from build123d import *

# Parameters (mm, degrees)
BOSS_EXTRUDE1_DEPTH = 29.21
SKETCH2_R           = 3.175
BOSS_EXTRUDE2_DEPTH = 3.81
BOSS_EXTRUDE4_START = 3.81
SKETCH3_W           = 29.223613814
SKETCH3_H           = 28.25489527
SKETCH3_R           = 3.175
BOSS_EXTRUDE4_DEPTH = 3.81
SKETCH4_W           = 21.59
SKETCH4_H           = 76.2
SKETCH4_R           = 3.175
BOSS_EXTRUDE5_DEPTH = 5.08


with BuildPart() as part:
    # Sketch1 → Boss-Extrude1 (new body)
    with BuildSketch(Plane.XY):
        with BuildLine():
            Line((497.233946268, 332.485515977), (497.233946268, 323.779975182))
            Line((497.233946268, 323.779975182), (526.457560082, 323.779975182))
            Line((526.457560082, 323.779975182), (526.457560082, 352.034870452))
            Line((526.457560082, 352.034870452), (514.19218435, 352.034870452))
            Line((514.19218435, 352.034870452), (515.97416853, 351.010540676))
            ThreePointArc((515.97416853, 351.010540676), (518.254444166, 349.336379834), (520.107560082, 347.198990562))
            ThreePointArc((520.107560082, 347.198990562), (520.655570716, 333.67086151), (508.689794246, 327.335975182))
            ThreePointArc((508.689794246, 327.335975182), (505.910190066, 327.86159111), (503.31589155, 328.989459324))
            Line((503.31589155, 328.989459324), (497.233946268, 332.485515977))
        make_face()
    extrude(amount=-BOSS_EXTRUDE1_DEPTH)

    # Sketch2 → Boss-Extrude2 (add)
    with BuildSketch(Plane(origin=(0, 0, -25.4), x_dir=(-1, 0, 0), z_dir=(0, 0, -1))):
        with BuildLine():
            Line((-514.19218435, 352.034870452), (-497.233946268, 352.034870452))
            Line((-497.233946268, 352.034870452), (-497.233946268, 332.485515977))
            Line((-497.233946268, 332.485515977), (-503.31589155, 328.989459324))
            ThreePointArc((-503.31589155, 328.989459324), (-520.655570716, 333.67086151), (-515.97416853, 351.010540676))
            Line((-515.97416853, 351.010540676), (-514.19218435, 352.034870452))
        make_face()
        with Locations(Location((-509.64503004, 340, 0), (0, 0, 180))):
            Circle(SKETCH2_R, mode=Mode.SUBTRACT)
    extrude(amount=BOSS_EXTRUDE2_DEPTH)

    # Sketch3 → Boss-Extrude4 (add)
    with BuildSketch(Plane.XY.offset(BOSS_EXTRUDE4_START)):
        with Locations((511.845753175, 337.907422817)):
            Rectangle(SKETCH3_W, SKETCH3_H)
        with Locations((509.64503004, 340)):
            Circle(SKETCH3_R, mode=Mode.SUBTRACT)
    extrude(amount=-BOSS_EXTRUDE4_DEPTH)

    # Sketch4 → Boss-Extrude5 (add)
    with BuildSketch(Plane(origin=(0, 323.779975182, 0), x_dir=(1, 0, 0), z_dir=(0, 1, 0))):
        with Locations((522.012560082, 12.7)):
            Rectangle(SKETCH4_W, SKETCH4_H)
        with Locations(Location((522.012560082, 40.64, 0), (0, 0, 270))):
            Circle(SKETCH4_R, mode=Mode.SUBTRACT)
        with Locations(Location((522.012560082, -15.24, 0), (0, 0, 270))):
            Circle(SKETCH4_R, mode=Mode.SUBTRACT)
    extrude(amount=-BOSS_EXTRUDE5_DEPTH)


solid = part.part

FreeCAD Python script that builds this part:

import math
import FreeCAD as App
import Part
import Sketcher
Q = App.Units.Quantity


def add_polygon(sketch, points):
    """Adds a closed chain of lines whose ends are joined by coincident constraints."""
    first, n = sketch.GeometryCount, len(points)
    for a, b in zip(points, points[1:] + points[:1]):
        sketch.addGeometry(Part.LineSegment(App.Vector(*a, 0), App.Vector(*b, 0)), False)
    for i in range(n):
        sketch.addConstraint(Sketcher.Constraint("Coincident", first + i, 2, first + (i + 1) % n, 1))

doc = App.newDocument("Part")
body = doc.addObject("PartDesign::Body", "Body")

# Sketch on XY plane
sketch1 = body.newObject("Sketcher::SketchObject", "Sketch")
sketch1.AttachmentSupport = (doc.getObject("XY_Plane"), [""])
sketch1.MapMode = "FlatFace"
sketch1.addGeometry(Part.LineSegment(App.Vector(497.2, 332.5, 0), App.Vector(497.2, 323.8, 0)), False)
sketch1.addGeometry(Part.LineSegment(App.Vector(497.2, 323.8, 0), App.Vector(526.5, 323.8, 0)), False)
sketch1.addGeometry(Part.LineSegment(App.Vector(526.5, 323.8, 0), App.Vector(526.5, 352, 0)), False)
sketch1.addGeometry(Part.LineSegment(App.Vector(526.5, 352, 0), App.Vector(514.2, 352, 0)), False)
sketch1.addGeometry(Part.LineSegment(App.Vector(514.2, 352, 0), App.Vector(516, 351, 0)), False)
sketch1.addGeometry(Part.ArcOfCircle(Part.Circle(App.Vector(509.6, 340, 0), App.Vector(0, 0, 1), 12.7), math.radians(35), math.radians(60)), False)
sketch1.addGeometry(Part.ArcOfCircle(Part.Circle(App.Vector(509.6, 340, 0), App.Vector(0, 0, 1), 12.7), math.radians(-94), math.radians(35)), False)
sketch1.addGeometry(Part.ArcOfCircle(Part.Circle(App.Vector(509.6, 340, 0), App.Vector(0, 0, 1), 12.7), math.radians(-120), math.radians(-94)), False)
sketch1.addGeometry(Part.LineSegment(App.Vector(503.3, 329, 0), App.Vector(497.2, 332.5, 0)), False)
sketch1.addConstraint(Sketcher.Constraint("Coincident", 0, 2, 1, 1))
sketch1.addConstraint(Sketcher.Constraint("Coincident", 1, 2, 2, 1))
sketch1.addConstraint(Sketcher.Constraint("Coincident", 2, 2, 3, 1))
sketch1.addConstraint(Sketcher.Constraint("Coincident", 3, 2, 4, 1))
sketch1.addConstraint(Sketcher.Constraint("Tangent", 4, 2, 5, 2))
sketch1.addConstraint(Sketcher.Constraint("Tangent", 5, 1, 6, 2))
sketch1.addConstraint(Sketcher.Constraint("Tangent", 6, 1, 7, 2))
sketch1.addConstraint(Sketcher.Constraint("Tangent", 7, 1, 8, 1))
sketch1.addConstraint(Sketcher.Constraint("Coincident", 8, 2, 0, 1))
sketch1.addConstraint(Sketcher.Constraint("Vertical", 0))
sketch1.addConstraint(Sketcher.Constraint("Horizontal", 1))
sketch1.addConstraint(Sketcher.Constraint("Vertical", 2))
sketch1.addConstraint(Sketcher.Constraint("Horizontal", 3))
sketch1.addConstraint(Sketcher.Constraint("Coincident", 7, 3, 5, 3))
sketch1.addConstraint(Sketcher.Constraint("Parallel", 4, 8))
sketch1.addConstraint(Sketcher.Constraint("Radius", 5, Q("0.5 in")))
sketch1.addConstraint(Sketcher.Constraint("DistanceX", 5, 1, 2, 2, Q("0.25 in")))
sketch1.addConstraint(Sketcher.Constraint("DistanceY", 0, 2, 6, 1, Q("0.14 in")))
sketch1.addConstraint(Sketcher.Constraint("DistanceY", 0, 2, 0, 1, 8.705541))
sketch1.addConstraint(Sketcher.Constraint("DistanceY", -1, 1, 5, 3, 340.0))
sketch1.addConstraint(Sketcher.Constraint("Distance", 8, 7.01516))
sketch1.addConstraint(Sketcher.Constraint("DistanceX", 1, 1, 1, 2, 29.223614))
sketch1.addConstraint(Sketcher.Constraint("DistanceX", 3, 2, 3, 1, 12.265376))
sketch1.addConstraint(Sketcher.Constraint("DistanceY", 2, 1, 2, 2, 28.254895))
sketch1.addConstraint(Sketcher.Constraint("DistanceX", -1, 1, 5, 3, 509.64503))
pad1 = body.newObject("PartDesign::Pad", "Pad")
pad1.Profile = sketch1
pad1.Length = Q("1.15 in")
pad1.Reversed = True

# Sketch on XY plane
sketch2 = body.newObject("Sketcher::SketchObject", "Sketch001")
sketch2.AttachmentSupport = (doc.getObject("XY_Plane"), [""])
sketch2.MapMode = "FlatFace"
sketch2.AttachmentOffset = App.Placement(App.Vector(0, 0, -1 * 25.4), App.Rotation())
sketch2.addGeometry(Part.LineSegment(App.Vector(497.2, 352, 0), App.Vector(514.2, 352, 0)), False)
sketch2.addGeometry(Part.LineSegment(App.Vector(514.2, 352, 0), App.Vector(516, 351, 0)), False)
sketch2.addGeometry(Part.ArcOfCircle(Part.Circle(App.Vector(509.6, 340, 0), App.Vector(0, 0, 1), 12.7), math.radians(-120), math.radians(60)), False)
sketch2.addGeometry(Part.LineSegment(App.Vector(503.3, 329, 0), App.Vector(497.2, 332.5, 0)), False)
sketch2.addGeometry(Part.LineSegment(App.Vector(497.2, 332.5, 0), App.Vector(497.2, 352, 0)), False)
sketch2.addGeometry(Part.Circle(App.Vector(509.6, 340, 0), App.Vector(0, 0, 1), 3.2), False)
sketch2.addConstraint(Sketcher.Constraint("Coincident", 0, 2, 1, 1))
sketch2.addConstraint(Sketcher.Constraint("Tangent", 1, 2, 2, 2))
sketch2.addConstraint(Sketcher.Constraint("Tangent", 2, 1, 3, 1))
sketch2.addConstraint(Sketcher.Constraint("Coincident", 3, 2, 4, 1))
sketch2.addConstraint(Sketcher.Constraint("Coincident", 4, 2, 0, 1))
sketch2.addConstraint(Sketcher.Constraint("Horizontal", 0))
sketch2.addConstraint(Sketcher.Constraint("Vertical", 4))
sketch2.addConstraint(Sketcher.Constraint("Coincident", 5, 3, 2, 3))
sketch2.addConstraint(Sketcher.Constraint("Parallel", 1, 3))
sketch2.addConstraint(Sketcher.Constraint("Radius", 2, Q("0.5 in")))
sketch2.addConstraint(Sketcher.Constraint("Diameter", 5, Q("0.25 in")))
sketch2.addConstraint(Sketcher.Constraint("DistanceX", 0, 1, 0, 2, 16.958238))
sketch2.addConstraint(Sketcher.Constraint("DistanceY", -1, 1, 2, 3, 340.0))
sketch2.addConstraint(Sketcher.Constraint("Distance", 3, 7.01516))
sketch2.addConstraint(Sketcher.Constraint("DistanceY", 4, 1, 4, 2, 19.549354))
sketch2.addConstraint(Sketcher.Constraint("DistanceX", -1, 1, 2, 3, 509.64503))
pad2 = body.newObject("PartDesign::Pad", "Pad001")
pad2.Profile = sketch2
pad2.Length = Q("0.15 in")
pad2.Reversed = True

# Sketch on XY plane
sketch3 = body.newObject("Sketcher::SketchObject", "Sketch002")
sketch3.AttachmentSupport = (doc.getObject("XY_Plane"), [""])
sketch3.MapMode = "FlatFace"
sketch3.AttachmentOffset = App.Placement(App.Vector(0, 0, 0.15 * 25.4), App.Rotation())
add_polygon(sketch3, [(497.2, 352), (497.2, 323.8), (526.5, 323.8), (526.5, 352)])  # lines 0-3
sketch3.addGeometry(Part.Circle(App.Vector(509.6, 340, 0), App.Vector(0, 0, 1), 3.2), False)  # 4
sketch3.addConstraint(Sketcher.Constraint("Vertical", 0))
sketch3.addConstraint(Sketcher.Constraint("Horizontal", 1))
sketch3.addConstraint(Sketcher.Constraint("Vertical", 2))
sketch3.addConstraint(Sketcher.Constraint("Horizontal", 3))
sketch3.addConstraint(Sketcher.Constraint("Diameter", 4, Q("0.25 in")))
sketch3.addConstraint(Sketcher.Constraint("DistanceY", -1, 1, 4, 3, 340.0))
sketch3.addConstraint(Sketcher.Constraint("DistanceX", 1, 1, 1, 2, 29.223614))
sketch3.addConstraint(Sketcher.Constraint("DistanceY", 0, 2, 0, 1, 28.254895))
sketch3.addConstraint(Sketcher.Constraint("DistanceX", -1, 1, 4, 3, 509.64503))
sketch3.addConstraint(Sketcher.Constraint("DistanceX", -1, 1, 1, 2, 526.45756))
sketch3.addConstraint(Sketcher.Constraint("DistanceY", -1, 1, 2, 2, 352.03487))
pad3 = body.newObject("PartDesign::Pad", "Pad002")
pad3.Profile = sketch3
pad3.Length = Q("0.15 in")
pad3.Reversed = True

# Sketch on XZ plane
sketch4 = body.newObject("Sketcher::SketchObject", "Sketch003")
sketch4.AttachmentSupport = (doc.getObject("XZ_Plane"), [""])
sketch4.MapMode = "FlatFace"
sketch4.AttachmentOffset = App.Placement(App.Vector(0, 0, -323.779975), App.Rotation())
add_polygon(sketch4, [(511.2, -50.8), (511.2, 25.4), (532.8, 25.4), (532.8, -50.8)])  # lines 0-3
sketch4.addGeometry(Part.Circle(App.Vector(522, 15.2, 0), App.Vector(0, 0, 1), 3.2), False)  # 4
sketch4.addGeometry(Part.Circle(App.Vector(522, -40.6, 0), App.Vector(0, 0, 1), 3.2), False)  # 5
sketch4.addConstraint(Sketcher.Constraint("Vertical", 0))
sketch4.addConstraint(Sketcher.Constraint("Horizontal", 1))
sketch4.addConstraint(Sketcher.Constraint("Vertical", 2))
sketch4.addConstraint(Sketcher.Constraint("Horizontal", 3))
sketch4.addConstraint(Sketcher.Constraint("Equal", 4, 5))
sketch4.addConstraint(Sketcher.Constraint("Vertical", 4, 3, 5, 3))
sketch4.addConstraint(Sketcher.Constraint("Diameter", 4, Q("0.25 in")))
sketch4.addConstraint(Sketcher.Constraint("DistanceY", 0, 1, 0, 2, Q("3 in")))
sketch4.addConstraint(Sketcher.Constraint("DistanceY", -1, 1, 0, 2, Q("1 in")))
sketch4.addConstraint(Sketcher.Constraint("DistanceX", 1, 1, 1, 2, Q("0.85 in")))
sketch4.addConstraint(Sketcher.Constraint("DistanceY", -1, 1, 4, 3, Q("0.6 in")))
sketch4.addConstraint(Sketcher.Constraint("DistanceY", 5, 3, -1, 1, Q("1.6 in")))
sketch4.addConstraint(Sketcher.Constraint("DistanceX", 0, 2, 4, 3, Q("0.425 in")))
sketch4.addConstraint(Sketcher.Constraint("DistanceX", -1, 1, 4, 3, 522.01256))
pad4 = body.newObject("PartDesign::Pad", "Pad003")
pad4.Profile = sketch4
pad4.Length = Q("0.2 in")

doc.recompute()
